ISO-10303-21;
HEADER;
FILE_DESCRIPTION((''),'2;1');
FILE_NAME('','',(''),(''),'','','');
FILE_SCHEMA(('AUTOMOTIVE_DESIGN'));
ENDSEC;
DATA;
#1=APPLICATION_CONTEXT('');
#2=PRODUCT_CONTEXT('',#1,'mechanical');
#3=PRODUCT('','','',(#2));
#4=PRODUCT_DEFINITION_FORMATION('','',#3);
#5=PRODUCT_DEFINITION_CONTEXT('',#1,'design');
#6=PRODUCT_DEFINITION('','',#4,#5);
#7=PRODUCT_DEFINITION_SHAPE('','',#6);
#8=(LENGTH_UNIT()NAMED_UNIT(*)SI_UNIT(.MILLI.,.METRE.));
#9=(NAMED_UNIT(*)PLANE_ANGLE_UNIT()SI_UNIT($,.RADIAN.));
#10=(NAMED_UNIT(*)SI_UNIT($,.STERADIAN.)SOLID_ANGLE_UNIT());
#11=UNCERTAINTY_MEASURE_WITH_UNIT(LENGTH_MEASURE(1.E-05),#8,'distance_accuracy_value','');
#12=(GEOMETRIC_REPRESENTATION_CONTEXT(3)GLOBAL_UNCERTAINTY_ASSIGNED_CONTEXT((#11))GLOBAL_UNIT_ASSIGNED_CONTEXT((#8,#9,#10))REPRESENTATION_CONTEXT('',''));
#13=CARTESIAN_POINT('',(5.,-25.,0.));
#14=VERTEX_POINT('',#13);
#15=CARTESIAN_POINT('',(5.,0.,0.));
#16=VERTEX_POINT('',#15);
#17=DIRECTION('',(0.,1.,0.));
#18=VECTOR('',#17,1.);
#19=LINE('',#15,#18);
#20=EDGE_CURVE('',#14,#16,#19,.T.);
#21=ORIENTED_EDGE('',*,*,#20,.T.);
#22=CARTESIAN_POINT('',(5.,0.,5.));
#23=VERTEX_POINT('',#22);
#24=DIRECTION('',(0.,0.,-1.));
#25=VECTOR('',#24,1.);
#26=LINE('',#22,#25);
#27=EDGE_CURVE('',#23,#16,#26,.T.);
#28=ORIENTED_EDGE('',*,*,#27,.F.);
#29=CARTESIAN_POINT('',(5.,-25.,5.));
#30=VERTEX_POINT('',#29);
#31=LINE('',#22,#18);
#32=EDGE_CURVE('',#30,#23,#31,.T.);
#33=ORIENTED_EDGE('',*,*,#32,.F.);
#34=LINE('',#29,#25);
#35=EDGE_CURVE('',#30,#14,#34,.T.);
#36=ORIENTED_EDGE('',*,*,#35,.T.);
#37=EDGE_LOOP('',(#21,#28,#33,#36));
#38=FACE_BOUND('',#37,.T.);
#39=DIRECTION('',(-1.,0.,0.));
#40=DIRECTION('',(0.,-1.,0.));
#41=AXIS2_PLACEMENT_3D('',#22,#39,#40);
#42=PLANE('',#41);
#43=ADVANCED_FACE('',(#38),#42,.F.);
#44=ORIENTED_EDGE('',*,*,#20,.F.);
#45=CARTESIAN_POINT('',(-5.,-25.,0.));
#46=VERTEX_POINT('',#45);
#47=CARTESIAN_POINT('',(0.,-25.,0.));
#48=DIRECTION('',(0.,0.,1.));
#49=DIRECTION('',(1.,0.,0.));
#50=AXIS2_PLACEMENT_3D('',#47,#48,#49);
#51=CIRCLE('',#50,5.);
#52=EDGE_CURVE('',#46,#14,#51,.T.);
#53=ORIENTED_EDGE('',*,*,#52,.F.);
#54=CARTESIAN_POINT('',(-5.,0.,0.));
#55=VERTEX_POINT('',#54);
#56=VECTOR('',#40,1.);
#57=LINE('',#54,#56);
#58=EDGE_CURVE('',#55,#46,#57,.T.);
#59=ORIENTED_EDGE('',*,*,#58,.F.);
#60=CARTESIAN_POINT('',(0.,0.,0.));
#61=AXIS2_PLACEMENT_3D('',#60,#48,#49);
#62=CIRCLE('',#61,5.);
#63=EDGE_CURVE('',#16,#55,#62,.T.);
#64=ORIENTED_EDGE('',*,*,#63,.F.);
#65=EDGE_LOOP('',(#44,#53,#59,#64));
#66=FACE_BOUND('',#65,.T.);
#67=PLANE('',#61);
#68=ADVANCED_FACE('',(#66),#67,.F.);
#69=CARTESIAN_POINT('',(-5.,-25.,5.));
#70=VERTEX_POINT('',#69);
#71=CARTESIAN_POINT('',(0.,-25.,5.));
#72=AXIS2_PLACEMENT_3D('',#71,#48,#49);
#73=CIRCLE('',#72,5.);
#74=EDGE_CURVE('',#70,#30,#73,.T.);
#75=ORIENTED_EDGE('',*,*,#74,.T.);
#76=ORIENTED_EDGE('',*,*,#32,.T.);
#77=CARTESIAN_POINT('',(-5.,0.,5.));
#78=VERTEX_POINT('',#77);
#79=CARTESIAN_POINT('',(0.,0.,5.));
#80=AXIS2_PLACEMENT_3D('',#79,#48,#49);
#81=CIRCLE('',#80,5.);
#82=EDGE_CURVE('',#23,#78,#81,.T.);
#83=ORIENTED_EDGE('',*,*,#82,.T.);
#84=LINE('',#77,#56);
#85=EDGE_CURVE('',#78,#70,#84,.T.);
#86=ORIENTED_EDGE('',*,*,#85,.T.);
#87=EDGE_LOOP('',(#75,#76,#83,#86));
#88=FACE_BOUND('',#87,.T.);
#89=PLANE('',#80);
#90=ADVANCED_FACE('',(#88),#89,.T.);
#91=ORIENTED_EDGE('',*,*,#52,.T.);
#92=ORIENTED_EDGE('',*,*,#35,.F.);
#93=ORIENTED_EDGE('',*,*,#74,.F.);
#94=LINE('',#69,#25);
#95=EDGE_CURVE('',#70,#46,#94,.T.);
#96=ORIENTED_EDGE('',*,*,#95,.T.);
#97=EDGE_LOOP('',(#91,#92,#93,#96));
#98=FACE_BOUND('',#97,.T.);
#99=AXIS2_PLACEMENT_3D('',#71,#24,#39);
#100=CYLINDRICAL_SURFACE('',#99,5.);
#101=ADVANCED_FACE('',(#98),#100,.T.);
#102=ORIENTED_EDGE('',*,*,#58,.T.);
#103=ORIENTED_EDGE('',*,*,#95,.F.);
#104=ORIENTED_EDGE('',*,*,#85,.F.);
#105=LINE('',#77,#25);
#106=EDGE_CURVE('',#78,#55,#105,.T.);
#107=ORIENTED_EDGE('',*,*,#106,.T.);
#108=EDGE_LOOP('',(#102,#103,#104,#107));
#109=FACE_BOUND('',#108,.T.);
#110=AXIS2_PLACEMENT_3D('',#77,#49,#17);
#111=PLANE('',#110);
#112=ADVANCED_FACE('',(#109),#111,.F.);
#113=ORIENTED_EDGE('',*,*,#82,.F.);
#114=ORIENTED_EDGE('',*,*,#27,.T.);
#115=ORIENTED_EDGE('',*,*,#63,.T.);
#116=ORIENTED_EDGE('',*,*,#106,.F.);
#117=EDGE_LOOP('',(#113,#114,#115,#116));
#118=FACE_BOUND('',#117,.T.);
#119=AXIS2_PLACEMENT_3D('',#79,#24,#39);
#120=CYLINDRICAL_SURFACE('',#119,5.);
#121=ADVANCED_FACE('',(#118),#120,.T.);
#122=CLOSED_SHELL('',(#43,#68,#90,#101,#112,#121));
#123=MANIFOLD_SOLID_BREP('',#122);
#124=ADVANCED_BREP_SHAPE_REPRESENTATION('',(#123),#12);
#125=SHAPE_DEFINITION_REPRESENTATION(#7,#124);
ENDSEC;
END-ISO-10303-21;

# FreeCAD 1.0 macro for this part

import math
import FreeCAD as App
import Part
import Sketcher

V = App.Vector
Q = App.Units.Quantity

doc = App.newDocument("Part")
params = doc.addObject("Spreadsheet::Sheet", "Params")
for row, (alias, value) in enumerate([
    ("sketch1_radius", "5 mm"),
    ("sketch1_height", "25 mm"),
    ("pad1_length", "5 mm"),
], start=1):
    params.set(f"A{row}", alias)
    params.set(f"B{row}", "=" + value)
    params.setAlias(f"B{row}", alias)

body = doc.addObject("PartDesign::Body", "Body")

# Sketch on XY plane
sketch1 = body.newObject("Sketcher::SketchObject", "Sketch")
sketch1.AttachmentSupport = (doc.getObject("XY_Plane"), [""])
sketch1.MapMode = "FlatFace"
sketch1.addGeometry([
    Part.LineSegment(V(5, -25, 0), V(5, 0, 0)),
    Part.ArcOfCircle(Part.Circle(V(0, 0, 0), V(0, 0, 1), 5), math.radians(0), math.radians(180)),
    Part.LineSegment(V(-5, 0, 0), V(-5, -25, 0)),
    Part.ArcOfCircle(Part.Circle(V(0, -25, 0), V(0, 0, 1), 5), math.radians(180), math.radians(360)),
], False)
sketch1.addConstraint([
    Sketcher.Constraint("Tangent", 0, 2, 1, 1),
    Sketcher.Constraint("Tangent", 1, 2, 2, 1),
    Sketcher.Constraint("Tangent", 2, 2, 3, 1),
    Sketcher.Constraint("Tangent", 3, 2, 0, 1),
    Sketcher.Constraint("Vertical", 0),
    Sketcher.Constraint("Vertical", 2),
    Sketcher.Constraint("Coincident", 1, 3, -1, 1),
    Sketcher.Constraint("Radius", 1, Q("5 mm")),
    Sketcher.Constraint("DistanceY", 0, 1, 0, 2, Q("25 mm")),
])
sketch1.setExpression("Constraints[7]", "Params.sketch1_radius")
sketch1.setExpression("Constraints[8]", "Params.sketch1_height")
pad1 = body.newObject("PartDesign::Pad", "Pad")
pad1.Profile = sketch1
pad1.setExpression("Length", "Params.pad1_length")

doc.recompute()
